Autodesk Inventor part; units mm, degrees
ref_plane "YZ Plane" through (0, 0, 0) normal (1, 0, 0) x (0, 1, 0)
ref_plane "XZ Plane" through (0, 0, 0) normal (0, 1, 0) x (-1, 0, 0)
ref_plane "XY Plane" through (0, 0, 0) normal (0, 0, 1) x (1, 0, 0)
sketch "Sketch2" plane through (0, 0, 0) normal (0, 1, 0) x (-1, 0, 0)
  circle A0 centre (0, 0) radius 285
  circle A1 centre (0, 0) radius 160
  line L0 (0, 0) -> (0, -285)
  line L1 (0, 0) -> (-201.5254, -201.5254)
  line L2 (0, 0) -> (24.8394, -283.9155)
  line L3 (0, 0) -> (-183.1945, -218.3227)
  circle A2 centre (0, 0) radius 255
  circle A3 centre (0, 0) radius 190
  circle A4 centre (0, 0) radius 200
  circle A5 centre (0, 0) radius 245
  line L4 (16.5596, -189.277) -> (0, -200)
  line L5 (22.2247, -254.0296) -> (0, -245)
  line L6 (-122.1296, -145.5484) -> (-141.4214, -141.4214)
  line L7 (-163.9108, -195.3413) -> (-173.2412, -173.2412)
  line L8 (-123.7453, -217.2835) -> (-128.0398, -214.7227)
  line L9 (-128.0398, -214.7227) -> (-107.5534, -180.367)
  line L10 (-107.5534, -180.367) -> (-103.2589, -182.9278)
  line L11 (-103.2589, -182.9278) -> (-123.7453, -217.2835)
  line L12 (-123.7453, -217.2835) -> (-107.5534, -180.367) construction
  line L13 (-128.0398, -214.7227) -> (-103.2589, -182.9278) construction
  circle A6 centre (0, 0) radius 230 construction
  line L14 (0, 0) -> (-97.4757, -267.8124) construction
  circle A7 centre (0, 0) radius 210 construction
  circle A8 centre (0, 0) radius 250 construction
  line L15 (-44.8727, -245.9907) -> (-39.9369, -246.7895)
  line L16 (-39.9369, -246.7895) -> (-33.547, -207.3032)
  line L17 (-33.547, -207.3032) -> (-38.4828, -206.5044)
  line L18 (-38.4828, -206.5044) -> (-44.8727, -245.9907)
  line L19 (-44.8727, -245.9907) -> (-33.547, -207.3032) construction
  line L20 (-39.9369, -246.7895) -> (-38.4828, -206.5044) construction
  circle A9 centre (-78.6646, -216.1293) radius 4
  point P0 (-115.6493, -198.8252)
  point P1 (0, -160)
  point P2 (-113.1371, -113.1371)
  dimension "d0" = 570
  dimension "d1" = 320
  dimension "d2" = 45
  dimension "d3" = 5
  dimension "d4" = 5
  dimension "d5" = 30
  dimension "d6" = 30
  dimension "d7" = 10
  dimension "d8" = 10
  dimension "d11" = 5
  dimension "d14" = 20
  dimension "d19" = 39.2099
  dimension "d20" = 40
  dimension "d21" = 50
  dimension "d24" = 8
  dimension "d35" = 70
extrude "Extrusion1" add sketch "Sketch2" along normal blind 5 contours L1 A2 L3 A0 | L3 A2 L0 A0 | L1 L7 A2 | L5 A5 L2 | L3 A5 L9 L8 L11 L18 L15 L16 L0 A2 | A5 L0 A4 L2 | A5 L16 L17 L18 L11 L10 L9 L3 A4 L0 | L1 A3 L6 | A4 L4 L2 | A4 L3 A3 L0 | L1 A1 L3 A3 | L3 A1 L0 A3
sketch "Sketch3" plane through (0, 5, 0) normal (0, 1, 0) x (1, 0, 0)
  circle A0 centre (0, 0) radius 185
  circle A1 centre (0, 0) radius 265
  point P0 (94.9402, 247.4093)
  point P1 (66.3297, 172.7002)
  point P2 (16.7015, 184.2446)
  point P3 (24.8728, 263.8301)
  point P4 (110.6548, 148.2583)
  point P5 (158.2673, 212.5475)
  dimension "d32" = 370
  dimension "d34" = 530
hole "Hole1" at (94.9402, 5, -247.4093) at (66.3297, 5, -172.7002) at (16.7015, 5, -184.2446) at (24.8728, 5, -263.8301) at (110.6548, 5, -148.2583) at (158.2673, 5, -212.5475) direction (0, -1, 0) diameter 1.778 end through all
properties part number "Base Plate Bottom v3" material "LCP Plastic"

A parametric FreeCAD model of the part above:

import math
import FreeCAD as App
import Part
import Sketcher

V = App.Vector
Q = App.Units.Quantity


def add_polygon(sketch, points):
    """Adds a closed chain of lines whose ends are joined by coincident constraints."""
    first, n = sketch.GeometryCount, len(points)
    for a, b in zip(points, points[1:] + points[:1]):
        sketch.addGeometry(Part.LineSegment(App.Vector(*a, 0), App.Vector(*b, 0)), False)
    for i in range(n):
        sketch.addConstraint(Sketcher.Constraint("Coincident", first + i, 2, first + (i + 1) % n, 1))

doc = App.newDocument("Part")
body = doc.addObject("PartDesign::Body", "Body")

sketch1 = body.newObject("Sketcher::SketchObject", "Sketch")
sketch1.AttachmentSupport = (doc.getObject("XZ_Plane"), [""])
sketch1.MapMode = "FlatFace"
sketch1.addGeometry(Part.ArcOfCircle(Part.Circle(V(0, 0, 0), V(0, 0, 1), 285), math.radians(-90), math.radians(-45)), False)
sketch1.addGeometry(Part.LineSegment(V(0, -285, 0), V(0, -245, 0)), False)
sketch1.addGeometry(Part.LineSegment(V(0, -245, 0), V(-22.2247, -254.0296, 0)), False)
sketch1.addGeometry(Part.LineSegment(V(-22.2247, -254.0296, 0), V(-16.5596, -189.277, 0)), False)
sketch1.addGeometry(Part.LineSegment(V(-16.5596, -189.277, 0), V(0, -200, 0)), False)
sketch1.addGeometry(Part.LineSegment(V(0, -200, 0), V(0, -160, 0)), False)
sketch1.addGeometry(Part.ArcOfCircle(Part.Circle(V(0, 0, 0), V(0, 0, 1), 160), math.radians(-90), math.radians(-45)), False)
sketch1.addGeometry(Part.LineSegment(V(113.137085, -113.137085, 0), V(141.4214, -141.4214, 0)), False)
sketch1.addGeometry(Part.LineSegment(V(141.4214, -141.4214, 0), V(122.1296, -145.5484, 0)), False)
sketch1.addGeometry(Part.LineSegment(V(122.1296, -145.5484, 0), V(163.9108, -195.3413, 0)), False)
sketch1.addGeometry(Part.LineSegment(V(163.9108, -195.3413, 0), V(173.2412, -173.2412, 0)), False)
sketch1.addGeometry(Part.LineSegment(V(173.2412, -173.2412, 0), V(201.5254, -201.5254, 0)), False)
add_polygon(sketch1, [(128.0398, -214.7227), (107.5534, -180.367), (103.2589, -182.9278), (123.7453, -217.2835)])
add_polygon(sketch1, [(44.8727, -245.9907), (38.4828, -206.5044), (33.547, -207.3032), (39.9369, -246.7895)])
sketch1.addGeometry(Part.Circle(V(78.6646, -216.1293, 0), V(0, 0, 1), 4), False)
sketch1.addConstraint([
    Sketcher.Constraint("Coincident", 0, 1, 1, 1),
    Sketcher.Constraint("Coincident", 1, 2, 2, 1),
    Sketcher.Constraint("Coincident", 2, 2, 3, 1),
    Sketcher.Constraint("Coincident", 3, 2, 4, 1),
    Sketcher.Constraint("Coincident", 4, 2, 5, 1),
    Sketcher.Constraint("Coincident", 5, 2, 6, 1),
    Sketcher.Constraint("Coincident", 6, 2, 7, 1),
    Sketcher.Constraint("Coincident", 7, 2, 8, 1),
    Sketcher.Constraint("Coincident", 8, 2, 9, 1),
    Sketcher.Constraint("Coincident", 9, 2, 10, 1),
    Sketcher.Constraint("Coincident", 10, 2, 11, 1),
    Sketcher.Constraint("Coincident", 11, 2, 0, 2),
    Sketcher.Constraint("Vertical", 1),
    Sketcher.Constraint("Vertical", 5),
    Sketcher.Constraint("Coincident", 0, 3, -1, 1),
    Sketcher.Constraint("Coincident", 6, 3, -1, 1),
    Sketcher.Constraint("PointOnObject", 0, 1, -2),
    Sketcher.Constraint("PointOnObject", 4, 2, -2),
    Sketcher.Constraint("Diameter", 20, Q("8 mm")),
    Sketcher.Constraint("Radius", 0, Q("285 mm")),
    Sketcher.Constraint("Radius", 6, Q("160 mm")),
    Sketcher.Constraint("DistanceY", 1, 1, 1, 2, Q("40 mm")),
    Sketcher.Constraint("DistanceY", 5, 1, 5, 2, Q("40 mm")),
    Sketcher.Constraint("Distance", 7, Q("40 mm")),
    Sketcher.Constraint("Distance", 11, Q("40 mm")),
    Sketcher.Constraint("Distance", 12, Q("40 mm")),
    Sketcher.Constraint("Distance", 13, Q("5 mm")),
    Sketcher.Constraint("Distance", 14, Q("40 mm")),
    Sketcher.Constraint("Distance", 15, Q("5 mm")),
    Sketcher.Constraint("Distance", 16, Q("40 mm")),
    Sketcher.Constraint("Distance", 17, Q("5 mm")),
    Sketcher.Constraint("Distance", 18, Q("40 mm")),
    Sketcher.Constraint("Distance", 19, Q("5 mm")),
    Sketcher.Constraint("Distance", 3, Q("65 mm")),
    Sketcher.Constraint("Distance", 9, Q("65 mm")),
    Sketcher.Constraint("DistanceY", 9, 2, 10, 2, Q("22.1 mm")),
    Sketcher.Constraint("DistanceY", 3, 2, 6, 2, Q("76.14 mm")),
    Sketcher.Constraint("DistanceY", 9, 2, 7, 2, Q("53.92 mm")),
    Sketcher.Constraint("DistanceX", 17, 2, 18, 2, Q("6.39 mm")),
    Sketcher.Constraint("Distance", 2, Q("23.989 mm")),
    Sketcher.Constraint("Distance", 10, Q("23.989 mm")),
    Sketcher.Constraint("DistanceY", 3, 2, -1, 1, Q("189.277 mm")),
    Sketcher.Constraint("DistanceY", 12, 2, -1, 1, Q("180.367 mm")),
    Sketcher.Constraint("DistanceX", -1, 1, 13, 2, Q("103.259 mm")),
    Sketcher.Constraint("DistanceX", -1, 1, 17, 2, Q("33.547 mm")),
    Sketcher.Constraint("DistanceX", 2, 2, 3, 2, Q("5.665 mm")),
    Sketcher.Constraint("DistanceY", 20, 3, 7, 2, Q("74.708 mm")),
    Sketcher.Constraint("DistanceX", 3, 2, 7, 2, Q("157.981 mm")),
    Sketcher.Constraint("DistanceY", 8, 2, 7, 2, Q("4.127 mm")),
    Sketcher.Constraint("DistanceX", 20, 3, 8, 2, Q("43.465 mm")),
    Sketcher.Constraint("DistanceY", 11, 2, 9, 2, Q("6.184 mm")),
    Sketcher.Constraint("DistanceX", 12, 2, 7, 2, Q("33.868 mm")),
    Sketcher.Constraint("DistanceX", 12, 2, 14, 2, Q("16.192 mm")),
    Sketcher.Constraint("DistanceY", 20, 3, 16, 2, Q("9.625 mm")),
    Sketcher.Constraint("DistanceY", 20, 3, 17, 2, Q("8.826 mm")),
])
pad1 = body.newObject("PartDesign::Pad", "Pad")
pad1.Profile = sketch1
pad1.Length = 5
pad1.Reversed = True

sketch2 = body.newObject("Sketcher::SketchObject", "Sketch001")
sketch2.AttachmentSupport = (doc.getObject("XZ_Plane"), [""])
sketch2.MapMode = "FlatFace"
sketch2.AttachmentOffset = App.Placement(V(0, 0, -5), App.Rotation())
sketch2.addGeometry([
    Part.Circle(V(94.9, -247.4, 0), V(0, 0, 1), 0.9),
    Part.Circle(V(66.3, -172.7, 0), V(0, 0, 1), 0.9),
    Part.Circle(V(16.7, -184.2, 0), V(0, 0, 1), 0.9),
    Part.Circle(V(24.9, -263.8, 0), V(0, 0, 1), 0.9),
    Part.Circle(V(110.7, -148.3, 0), V(0, 0, 1), 0.9),
    Part.Circle(V(158.3, -212.5, 0), V(0, 0, 1), 0.9),
], False)
sketch2.addConstraint([
    Sketcher.Constraint("Equal", 0, 1),
    Sketcher.Constraint("Equal", 1, 2),
    Sketcher.Constraint("Equal", 2, 3),
    Sketcher.Constraint("Equal", 3, 4),
    Sketcher.Constraint("Equal", 4, 5),
    Sketcher.Constraint("Diameter", 0, Q("1.778 mm")),
    Sketcher.Constraint("DistanceY", 3, 3, -1, 1, Q("263.83 mm")),
    Sketcher.Constraint("DistanceY", 3, 3, 1, 3, Q("91.13 mm")),
    Sketcher.Constraint("DistanceY", 0, 3, 1, 3, Q("74.709 mm")),
    Sketcher.Constraint("DistanceX", 3, 3, 1, 3, Q("41.457 mm")),
    Sketcher.Constraint("DistanceX", 1, 3, 4, 3, Q("44.325 mm")),
    Sketcher.Constraint("DistanceY", 1, 3, 4, 3, Q("24.442 mm")),
    Sketcher.Constraint("DistanceX", 0, 3, 5, 3, Q("63.327 mm")),
    Sketcher.Constraint("DistanceY", 5, 3, 2, 3, Q("28.303 mm")),
    Sketcher.Constraint("DistanceX", -1, 1, 0, 3, Q("94.9402 mm")),
    Sketcher.Constraint("DistanceX", -1, 1, 1, 3, Q("66.3297 mm")),
    Sketcher.Constraint("DistanceX", -1, 1, 2, 3, Q("16.7015 mm")),
    Sketcher.Constraint("DistanceY", 2, 3, -1, 1, Q("184.2446 mm")),
])
doc.recompute()
hole = body.newObject("PartDesign::Hole", "Hole")
hole.Profile = sketch2
hole.ThreadType = "None"
hole.Diameter = 1.778
hole.DepthType = "ThroughAll"
hole.Reversed = True

doc.recompute()
